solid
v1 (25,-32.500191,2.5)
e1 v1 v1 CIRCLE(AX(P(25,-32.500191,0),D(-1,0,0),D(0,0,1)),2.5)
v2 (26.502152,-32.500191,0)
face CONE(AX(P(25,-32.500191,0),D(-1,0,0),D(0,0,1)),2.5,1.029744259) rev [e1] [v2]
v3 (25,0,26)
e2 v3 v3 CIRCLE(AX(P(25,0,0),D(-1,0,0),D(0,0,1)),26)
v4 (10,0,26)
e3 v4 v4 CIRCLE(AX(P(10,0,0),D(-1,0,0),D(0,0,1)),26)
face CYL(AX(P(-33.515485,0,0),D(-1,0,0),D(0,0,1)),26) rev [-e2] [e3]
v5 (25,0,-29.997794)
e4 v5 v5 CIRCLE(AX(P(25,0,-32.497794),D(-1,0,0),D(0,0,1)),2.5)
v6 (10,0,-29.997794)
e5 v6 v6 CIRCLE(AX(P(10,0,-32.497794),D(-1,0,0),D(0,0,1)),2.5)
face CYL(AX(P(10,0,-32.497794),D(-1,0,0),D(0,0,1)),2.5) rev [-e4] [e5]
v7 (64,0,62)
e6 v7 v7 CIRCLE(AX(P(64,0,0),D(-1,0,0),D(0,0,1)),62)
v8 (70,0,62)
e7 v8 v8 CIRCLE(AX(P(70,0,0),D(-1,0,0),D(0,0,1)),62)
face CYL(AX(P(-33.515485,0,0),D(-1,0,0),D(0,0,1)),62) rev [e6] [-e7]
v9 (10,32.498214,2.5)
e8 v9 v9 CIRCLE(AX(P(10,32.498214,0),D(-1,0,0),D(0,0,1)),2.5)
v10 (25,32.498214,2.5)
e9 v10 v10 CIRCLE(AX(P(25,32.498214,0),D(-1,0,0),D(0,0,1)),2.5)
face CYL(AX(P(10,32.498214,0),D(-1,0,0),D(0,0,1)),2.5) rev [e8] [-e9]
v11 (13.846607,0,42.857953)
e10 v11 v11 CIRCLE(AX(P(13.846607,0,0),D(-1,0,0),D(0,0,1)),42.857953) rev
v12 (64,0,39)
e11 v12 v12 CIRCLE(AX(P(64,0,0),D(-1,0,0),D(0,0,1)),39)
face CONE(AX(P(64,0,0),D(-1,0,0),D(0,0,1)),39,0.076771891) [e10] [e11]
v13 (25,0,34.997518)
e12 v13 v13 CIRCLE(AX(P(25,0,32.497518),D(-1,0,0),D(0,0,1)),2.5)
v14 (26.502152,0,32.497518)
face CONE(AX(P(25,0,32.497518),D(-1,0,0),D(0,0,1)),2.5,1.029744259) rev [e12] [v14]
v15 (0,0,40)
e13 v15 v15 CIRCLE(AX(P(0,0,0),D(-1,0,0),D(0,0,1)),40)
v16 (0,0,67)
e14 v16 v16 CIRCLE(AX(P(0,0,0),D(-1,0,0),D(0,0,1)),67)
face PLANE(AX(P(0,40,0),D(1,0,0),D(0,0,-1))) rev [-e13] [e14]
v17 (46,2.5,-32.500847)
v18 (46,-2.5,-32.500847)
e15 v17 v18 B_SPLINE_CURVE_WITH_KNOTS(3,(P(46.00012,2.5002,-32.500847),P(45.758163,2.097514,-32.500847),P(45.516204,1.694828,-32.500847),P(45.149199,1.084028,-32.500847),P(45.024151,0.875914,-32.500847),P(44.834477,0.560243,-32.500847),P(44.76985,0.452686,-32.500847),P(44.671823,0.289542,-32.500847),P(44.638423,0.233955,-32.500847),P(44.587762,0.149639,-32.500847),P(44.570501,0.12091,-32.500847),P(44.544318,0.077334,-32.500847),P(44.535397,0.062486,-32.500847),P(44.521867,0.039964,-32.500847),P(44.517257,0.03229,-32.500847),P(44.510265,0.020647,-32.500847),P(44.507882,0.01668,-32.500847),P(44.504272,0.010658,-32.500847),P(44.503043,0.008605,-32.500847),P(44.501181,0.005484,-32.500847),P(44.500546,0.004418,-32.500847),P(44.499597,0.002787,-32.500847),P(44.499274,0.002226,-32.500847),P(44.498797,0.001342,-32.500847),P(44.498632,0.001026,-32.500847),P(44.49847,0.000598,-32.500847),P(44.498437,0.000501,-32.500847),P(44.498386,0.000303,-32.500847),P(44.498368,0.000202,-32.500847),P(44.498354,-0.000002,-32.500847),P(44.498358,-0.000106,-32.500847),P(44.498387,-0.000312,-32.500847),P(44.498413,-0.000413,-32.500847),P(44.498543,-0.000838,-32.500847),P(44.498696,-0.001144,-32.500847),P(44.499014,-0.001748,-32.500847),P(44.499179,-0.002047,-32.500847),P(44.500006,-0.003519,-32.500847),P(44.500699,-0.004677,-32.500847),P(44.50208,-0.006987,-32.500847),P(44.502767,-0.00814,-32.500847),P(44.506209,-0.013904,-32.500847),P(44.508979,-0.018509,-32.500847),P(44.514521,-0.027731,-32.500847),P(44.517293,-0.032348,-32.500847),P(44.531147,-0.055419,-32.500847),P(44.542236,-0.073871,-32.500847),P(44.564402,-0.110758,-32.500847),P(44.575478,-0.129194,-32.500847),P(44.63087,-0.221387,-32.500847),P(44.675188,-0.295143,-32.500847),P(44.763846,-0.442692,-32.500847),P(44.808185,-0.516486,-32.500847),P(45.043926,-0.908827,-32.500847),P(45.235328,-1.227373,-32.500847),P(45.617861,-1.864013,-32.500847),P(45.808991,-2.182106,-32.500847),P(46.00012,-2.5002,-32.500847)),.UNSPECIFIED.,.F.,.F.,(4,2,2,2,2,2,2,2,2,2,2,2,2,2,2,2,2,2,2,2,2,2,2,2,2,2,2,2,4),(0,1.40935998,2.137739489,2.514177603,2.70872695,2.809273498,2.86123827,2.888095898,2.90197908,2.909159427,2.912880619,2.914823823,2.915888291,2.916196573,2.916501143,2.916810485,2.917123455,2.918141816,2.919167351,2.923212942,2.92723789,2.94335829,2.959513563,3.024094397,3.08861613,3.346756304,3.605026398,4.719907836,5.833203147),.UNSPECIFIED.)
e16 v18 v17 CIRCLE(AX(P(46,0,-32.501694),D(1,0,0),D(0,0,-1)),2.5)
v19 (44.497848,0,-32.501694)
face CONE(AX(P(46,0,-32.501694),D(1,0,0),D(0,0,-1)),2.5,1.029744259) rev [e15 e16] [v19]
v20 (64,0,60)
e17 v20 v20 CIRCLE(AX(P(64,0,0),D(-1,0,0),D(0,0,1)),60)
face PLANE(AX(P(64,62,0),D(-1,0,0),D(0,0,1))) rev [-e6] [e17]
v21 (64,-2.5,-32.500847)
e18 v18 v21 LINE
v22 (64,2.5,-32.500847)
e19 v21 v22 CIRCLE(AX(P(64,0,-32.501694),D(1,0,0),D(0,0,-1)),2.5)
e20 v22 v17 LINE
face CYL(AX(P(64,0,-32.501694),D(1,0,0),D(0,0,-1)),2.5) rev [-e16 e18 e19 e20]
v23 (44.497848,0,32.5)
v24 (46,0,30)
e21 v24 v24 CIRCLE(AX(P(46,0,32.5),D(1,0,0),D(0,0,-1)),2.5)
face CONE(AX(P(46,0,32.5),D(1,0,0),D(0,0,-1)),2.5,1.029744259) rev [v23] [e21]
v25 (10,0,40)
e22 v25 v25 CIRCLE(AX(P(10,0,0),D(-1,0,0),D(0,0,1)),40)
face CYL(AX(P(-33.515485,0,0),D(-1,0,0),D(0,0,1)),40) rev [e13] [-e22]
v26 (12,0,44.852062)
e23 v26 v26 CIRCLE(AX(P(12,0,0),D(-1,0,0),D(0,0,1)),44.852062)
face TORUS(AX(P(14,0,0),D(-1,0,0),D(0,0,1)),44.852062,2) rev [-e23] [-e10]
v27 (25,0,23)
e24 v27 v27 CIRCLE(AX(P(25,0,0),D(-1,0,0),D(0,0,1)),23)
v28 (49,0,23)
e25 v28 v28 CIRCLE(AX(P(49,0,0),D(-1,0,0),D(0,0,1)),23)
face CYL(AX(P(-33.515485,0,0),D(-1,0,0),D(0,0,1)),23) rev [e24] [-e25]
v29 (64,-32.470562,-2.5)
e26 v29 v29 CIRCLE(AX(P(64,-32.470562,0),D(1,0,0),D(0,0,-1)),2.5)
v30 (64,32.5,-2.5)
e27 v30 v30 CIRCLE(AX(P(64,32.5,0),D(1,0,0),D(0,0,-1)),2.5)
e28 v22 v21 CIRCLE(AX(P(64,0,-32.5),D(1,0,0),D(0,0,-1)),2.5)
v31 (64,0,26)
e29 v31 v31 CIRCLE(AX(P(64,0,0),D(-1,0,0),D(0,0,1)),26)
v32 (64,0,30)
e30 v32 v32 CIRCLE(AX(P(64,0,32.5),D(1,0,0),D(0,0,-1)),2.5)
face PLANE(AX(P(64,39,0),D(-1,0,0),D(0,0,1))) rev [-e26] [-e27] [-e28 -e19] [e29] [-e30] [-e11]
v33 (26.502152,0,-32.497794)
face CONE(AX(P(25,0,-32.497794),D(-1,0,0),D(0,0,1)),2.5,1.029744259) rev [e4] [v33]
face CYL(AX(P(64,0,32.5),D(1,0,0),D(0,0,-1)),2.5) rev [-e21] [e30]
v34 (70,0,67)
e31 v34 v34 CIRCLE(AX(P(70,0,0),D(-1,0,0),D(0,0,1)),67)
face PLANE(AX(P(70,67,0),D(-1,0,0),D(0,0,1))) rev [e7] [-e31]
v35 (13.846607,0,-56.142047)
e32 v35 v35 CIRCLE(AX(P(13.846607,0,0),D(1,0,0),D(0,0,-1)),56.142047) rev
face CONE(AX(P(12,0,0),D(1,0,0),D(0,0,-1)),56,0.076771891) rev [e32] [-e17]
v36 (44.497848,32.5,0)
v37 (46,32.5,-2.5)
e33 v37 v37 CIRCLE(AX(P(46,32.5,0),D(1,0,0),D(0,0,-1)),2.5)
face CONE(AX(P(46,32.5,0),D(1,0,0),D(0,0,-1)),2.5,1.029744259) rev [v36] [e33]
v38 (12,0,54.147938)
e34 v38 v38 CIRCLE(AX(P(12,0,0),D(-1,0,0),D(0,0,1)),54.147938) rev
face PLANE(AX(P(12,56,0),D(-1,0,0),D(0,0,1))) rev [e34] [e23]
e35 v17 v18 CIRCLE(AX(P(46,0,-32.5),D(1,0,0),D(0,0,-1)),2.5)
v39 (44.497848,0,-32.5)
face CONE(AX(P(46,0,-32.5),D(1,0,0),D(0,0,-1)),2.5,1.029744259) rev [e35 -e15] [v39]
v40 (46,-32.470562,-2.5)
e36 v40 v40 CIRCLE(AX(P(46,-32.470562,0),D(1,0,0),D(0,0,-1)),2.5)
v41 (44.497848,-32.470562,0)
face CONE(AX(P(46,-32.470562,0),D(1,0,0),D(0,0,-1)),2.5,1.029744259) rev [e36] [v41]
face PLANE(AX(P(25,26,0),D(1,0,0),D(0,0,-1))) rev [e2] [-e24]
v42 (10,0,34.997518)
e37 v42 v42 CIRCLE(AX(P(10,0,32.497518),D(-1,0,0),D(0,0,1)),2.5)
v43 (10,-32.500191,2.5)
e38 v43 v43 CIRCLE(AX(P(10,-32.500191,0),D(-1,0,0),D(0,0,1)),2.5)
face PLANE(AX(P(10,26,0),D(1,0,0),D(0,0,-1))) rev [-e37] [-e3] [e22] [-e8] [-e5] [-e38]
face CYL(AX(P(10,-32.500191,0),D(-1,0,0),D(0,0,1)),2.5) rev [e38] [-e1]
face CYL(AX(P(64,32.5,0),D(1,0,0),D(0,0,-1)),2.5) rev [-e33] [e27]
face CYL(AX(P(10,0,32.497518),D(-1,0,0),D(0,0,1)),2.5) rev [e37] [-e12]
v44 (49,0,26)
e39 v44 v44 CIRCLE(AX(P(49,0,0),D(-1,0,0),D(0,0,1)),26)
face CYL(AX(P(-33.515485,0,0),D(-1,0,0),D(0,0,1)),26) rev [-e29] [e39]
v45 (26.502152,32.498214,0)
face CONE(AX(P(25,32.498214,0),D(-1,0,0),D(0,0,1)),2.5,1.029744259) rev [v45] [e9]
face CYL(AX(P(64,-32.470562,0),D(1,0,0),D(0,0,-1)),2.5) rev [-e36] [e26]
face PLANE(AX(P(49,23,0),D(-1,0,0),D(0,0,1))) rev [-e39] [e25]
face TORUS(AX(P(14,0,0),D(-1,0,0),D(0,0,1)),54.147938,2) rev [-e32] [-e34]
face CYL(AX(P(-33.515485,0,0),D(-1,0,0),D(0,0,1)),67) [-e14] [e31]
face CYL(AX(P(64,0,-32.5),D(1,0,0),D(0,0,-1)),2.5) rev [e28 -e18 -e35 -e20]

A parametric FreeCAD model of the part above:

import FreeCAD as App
import Part
import Sketcher


def edges_at(feature, points):
    """Names of the edges that pass closest to the given points."""
    edges = feature.Shape.Edges
    near = lambda p: min(range(len(edges)), key=lambda i: edges[i].distToShape(Part.Vertex(*p))[0])
    return sorted({f"Edge{near(p) + 1}" for p in points})

doc = App.newDocument("Part")
params = doc.addObject("Spreadsheet::Sheet", "Params")
for row, (alias, value) in enumerate([
    ("sketch1_width", "70 mm"),
    ("sketch1_width2", "10 mm"),
    ("sketch1_width3", "15 mm"),
    ("sketch1_width4", "24 mm"),
    ("sketch1_height", "27 mm"),
    ("revolution_angle", "360 deg"),
    ("fillet_radius", "2 mm"),
    ("sketch2_diameter", "5 mm"),
    ("hole_diameter", "5 mm"),
    ("hole_depth", "18 mm"),
    ("sketch3_diameter", "5 mm"),
    ("hole2_diameter", "5 mm"),
    ("hole2_depth", "18 mm"),
    ("sketch4_diameter", "5 mm"),
    ("hole3_diameter", "5 mm"),
    ("hole3_depth", "15 mm"),
    ("sketch5_diameter", "5 mm"),
    ("hole4_diameter", "5 mm"),
    ("hole4_depth", "15 mm"),
    ("sketch6_diameter", "5 mm"),
    ("hole5_diameter", "5 mm"),
    ("hole5_depth", "18 mm"),
    ("sketch7_diameter", "5 mm"),
    ("hole6_diameter", "5 mm"),
    ("hole6_depth", "18 mm"),
    ("sketch8_diameter", "5 mm"),
    ("hole7_diameter", "5 mm"),
    ("hole7_depth", "15 mm"),
], start=1):
    params.set(f"A{row}", alias)
    params.set(f"B{row}", "=" + value)
    params.setAlias(f"B{row}", alias)

body = doc.addObject("PartDesign::Body", "Body")

# Sketch on XY plane
sketch1 = body.newObject("Sketcher::SketchObject", "Sketch")
sketch1.AttachmentSupport = (doc.getObject("XY_Plane"), [""])
sketch1.MapMode = "FlatFace"
sketch1.addGeometry(Part.LineSegment(App.Vector(70, 67, 0), App.Vector(0, 67, 0)), False)
sketch1.addGeometry(Part.LineSegment(App.Vector(0, 67, 0), App.Vector(0, 40, 0)), False)
sketch1.addGeometry(Part.LineSegment(App.Vector(0, 40, 0), App.Vector(10, 40, 0)), False)
sketch1.addGeometry(Part.LineSegment(App.Vector(10, 40, 0), App.Vector(10, 26, 0)), False)
sketch1.addGeometry(Part.LineSegment(App.Vector(10, 26, 0), App.Vector(25, 26, 0)), False)
sketch1.addGeometry(Part.LineSegment(App.Vector(25, 26, 0), App.Vector(25, 23, 0)), False)
sketch1.addGeometry(Part.LineSegment(App.Vector(25, 23, 0), App.Vector(49, 23, 0)), False)
sketch1.addGeometry(Part.LineSegment(App.Vector(49, 23, 0), App.Vector(49, 26, 0)), False)
sketch1.addGeometry(Part.LineSegment(App.Vector(49, 26, 0), App.Vector(64, 26, 0)), False)
sketch1.addGeometry(Part.LineSegment(App.Vector(64, 26, 0), App.Vector(64, 39, 0)), False)
sketch1.addGeometry(Part.LineSegment(App.Vector(64, 39, 0), App.Vector(12, 43, 0)), False)
sketch1.addGeometry(Part.LineSegment(App.Vector(12, 43, 0), App.Vector(12, 56, 0)), False)
sketch1.addGeometry(Part.LineSegment(App.Vector(12, 56, 0), App.Vector(64, 60, 0)), False)
sketch1.addGeometry(Part.LineSegment(App.Vector(64, 60, 0), App.Vector(64, 62, 0)), False)
sketch1.addGeometry(Part.LineSegment(App.Vector(64, 62, 0), App.Vector(70, 62, 0)), False)
sketch1.addGeometry(Part.LineSegment(App.Vector(70, 62, 0), App.Vector(70, 67, 0)), False)
sketch1.addConstraint(Sketcher.Constraint("Coincident", 0, 2, 1, 1))
sketch1.addConstraint(Sketcher.Constraint("Coincident", 1, 2, 2, 1))
sketch1.addConstraint(Sketcher.Constraint("Coincident", 2, 2, 3, 1))
sketch1.addConstraint(Sketcher.Constraint("Coincident", 3, 2, 4, 1))
sketch1.addConstraint(Sketcher.Constraint("Coincident", 4, 2, 5, 1))
sketch1.addConstraint(Sketcher.Constraint("Coincident", 5, 2, 6, 1))
sketch1.addConstraint(Sketcher.Constraint("Coincident", 6, 2, 7, 1))
sketch1.addConstraint(Sketcher.Constraint("Coincident", 7, 2, 8, 1))
sketch1.addConstraint(Sketcher.Constraint("Coincident", 8, 2, 9, 1))
sketch1.addConstraint(Sketcher.Constraint("Coincident", 9, 2, 10, 1))
sketch1.addConstraint(Sketcher.Constraint("Coincident", 10, 2, 11, 1))
sketch1.addConstraint(Sketcher.Constraint("Coincident", 11, 2, 12, 1))
sketch1.addConstraint(Sketcher.Constraint("Coincident", 12, 2, 13, 1))
sketch1.addConstraint(Sketcher.Constraint("Coincident", 13, 2, 14, 1))
sketch1.addConstraint(Sketcher.Constraint("Coincident", 14, 2, 15, 1))
sketch1.addConstraint(Sketcher.Constraint("Coincident", 15, 2, 0, 1))
sketch1.addConstraint(Sketcher.Constraint("Horizontal", 0))
sketch1.addConstraint(Sketcher.Constraint("Vertical", 1))
sketch1.addConstraint(Sketcher.Constraint("Horizontal", 2))
sketch1.addConstraint(Sketcher.Constraint("Vertical", 3))
sketch1.addConstraint(Sketcher.Constraint("Horizontal", 4))
sketch1.addConstraint(Sketcher.Constraint("Vertical", 5))
sketch1.addConstraint(Sketcher.Constraint("Horizontal", 6))
sketch1.addConstraint(Sketcher.Constraint("Vertical", 7))
sketch1.addConstraint(Sketcher.Constraint("Horizontal", 8))
sketch1.addConstraint(Sketcher.Constraint("Vertical", 9))
sketch1.addConstraint(Sketcher.Constraint("Vertical", 11))
sketch1.addConstraint(Sketcher.Constraint("Vertical", 13))
sketch1.addConstraint(Sketcher.Constraint("Horizontal", 14))
sketch1.addConstraint(Sketcher.Constraint("Vertical", 15))
sketch1.addConstraint(Sketcher.Constraint("PointOnObject", 0, 2, -2))
sketch1.addConstraint(Sketcher.Constraint("Horizontal", 4, 2, 7, 2))
sketch1.addConstraint(Sketcher.Constraint("Vertical", 9, 2, 12, 2))
sketch1.addConstraint(Sketcher.Constraint("Equal", 4, 8))
sketch1.addConstraint(Sketcher.Constraint("Equal", 9, 11))
sketch1.addConstraint(Sketcher.Constraint("Equal", 10, 12))
sketch1.addConstraint(Sketcher.Constraint("DistanceX", 0, 2, 0, 1, 70.0))
sketch1.addConstraint(Sketcher.Constraint("DistanceX", 2, 1, 2, 2, 10.0))
sketch1.addConstraint(Sketcher.Constraint("DistanceX", 4, 1, 4, 2, 15.0))
sketch1.addConstraint(Sketcher.Constraint("DistanceX", 6, 1, 6, 2, 24.0))
sketch1.addConstraint(Sketcher.Constraint("DistanceY", 1, 2, 1, 1, 27.0))
sketch1.addConstraint(Sketcher.Constraint("DistanceY", 3, 2, 3, 1, 14.0))
sketch1.addConstraint(Sketcher.Constraint("DistanceY", 5, 2, 5, 1, 3.0))
sketch1.addConstraint(Sketcher.Constraint("DistanceY", 9, 1, 9, 2, 13.0))
sketch1.addConstraint(Sketcher.Constraint("DistanceY", 13, 1, 13, 2, 2.0))
sketch1.addConstraint(Sketcher.Constraint("DistanceY", 15, 1, 15, 2, 5.0))
sketch1.addConstraint(Sketcher.Constraint("DistanceY", -1, 1, 0, 2, 67.0))
sketch1.addConstraint(Sketcher.Constraint("DistanceX", -1, 1, 10, 2, 12.0))
sketch1.setExpression("Constraints[36]", "Params.sketch1_width")
sketch1.setExpression("Constraints[37]", "Params.sketch1_width2")
sketch1.setExpression("Constraints[38]", "Params.sketch1_width3")
sketch1.setExpression("Constraints[39]", "Params.sketch1_width4")
sketch1.setExpression("Constraints[40]", "Params.sketch1_height")
revolution = body.newObject("PartDesign::Revolution", "Revolution")
revolution.Profile = sketch1
revolution.ReferenceAxis = (sketch1, ["H_Axis"])
revolution.setExpression("Angle", "Params.revolution_angle")
doc.recompute()

fillet = body.newObject("PartDesign::Fillet", "Fillet")
fillet.Base = (revolution, edges_at(revolution, [(12, 0, -43), (12, 0, -56)]))
fillet.setExpression("Radius", "Params.fillet_radius")

# Sketch on YZ plane
sketch2 = body.newObject("Sketcher::SketchObject", "Sketch001")
sketch2.AttachmentSupport = (doc.getObject("YZ_Plane"), [""])
sketch2.MapMode = "FlatFace"
sketch2.AttachmentOffset = App.Placement(App.Vector(0, 0, 64), App.Rotation())
sketch2.addGeometry(Part.Circle(App.Vector(32.5, 0, 0), App.Vector(0, 0, 1), 2.5), False)
sketch2.addConstraint(Sketcher.Constraint("PointOnObject", 0, 3, -1))
sketch2.addConstraint(Sketcher.Constraint("Diameter", 0, 5.0))
sketch2.addConstraint(Sketcher.Constraint("DistanceX", -1, 1, 0, 3, 32.5))
sketch2.setExpression("Constraints[1]", "Params.sketch2_diameter")
doc.recompute()
hole = body.newObject("PartDesign::Hole", "Hole")
hole.Profile = sketch2
hole.ThreadType = "None"
hole.setExpression("Diameter", "Params.hole_diameter")
hole.DepthType = "Dimension"
hole.setExpression("Depth", "Params.hole_depth")
hole.DrillPoint = "Angled"
hole.DrillPointAngle = 118

# Sketch on YZ plane
sketch3 = body.newObject("Sketcher::SketchObject", "Sketch002")
sketch3.AttachmentSupport = (doc.getObject("YZ_Plane"), [""])
sketch3.MapMode = "FlatFace"
sketch3.AttachmentOffset = App.Placement(App.Vector(0, 0, 64), App.Rotation())
sketch3.addGeometry(Part.Circle(App.Vector(-32.5, 0, 0), App.Vector(0, 0, 1), 2.5), False)
sketch3.addConstraint(Sketcher.Constraint("PointOnObject", 0, 3, -1))
sketch3.addConstraint(Sketcher.Constraint("Diameter", 0, 5.0))
sketch3.addConstraint(Sketcher.Constraint("DistanceX", 0, 3, -1, 1, 32.470562))
sketch3.setExpression("Constraints[1]", "Params.sketch3_diameter")
doc.recompute()
hole2 = body.newObject("PartDesign::Hole", "Hole001")
hole2.Profile = sketch3
hole2.ThreadType = "None"
hole2.setExpression("Diameter", "Params.hole2_diameter")
hole2.DepthType = "Dimension"
hole2.setExpression("Depth", "Params.hole2_depth")
hole2.DrillPoint = "Angled"
hole2.DrillPointAngle = 118

# Sketch on YZ plane
sketch4 = body.newObject("Sketcher::SketchObject", "Sketch003")
sketch4.AttachmentSupport = (doc.getObject("YZ_Plane"), [""])
sketch4.MapMode = "FlatFace"
sketch4.AttachmentOffset = App.Placement(App.Vector(0, 0, 10), App.Rotation())
sketch4.addGeometry(Part.Circle(App.Vector(32.5, 0, 0), App.Vector(0, 0, 1), 2.5), False)
sketch4.addConstraint(Sketcher.Constraint("PointOnObject", 0, 3, -1))
sketch4.addConstraint(Sketcher.Constraint("Diameter", 0, 5.0))
sketch4.addConstraint(Sketcher.Constraint("DistanceX", -1, 1, 0, 3, 32.498214))
sketch4.setExpression("Constraints[1]", "Params.sketch4_diameter")
doc.recompute()
hole3 = body.newObject("PartDesign::Hole", "Hole002")
hole3.Profile = sketch4
hole3.ThreadType = "None"
hole3.setExpression("Diameter", "Params.hole3_diameter")
hole3.DepthType = "Dimension"
hole3.setExpression("Depth", "Params.hole3_depth")
hole3.DrillPoint = "Angled"
hole3.DrillPointAngle = 118
hole3.Reversed = True

# Sketch on YZ plane
sketch5 = body.newObject("Sketcher::SketchObject", "Sketch004")
sketch5.AttachmentSupport = (doc.getObject("YZ_Plane"), [""])
sketch5.MapMode = "FlatFace"
sketch5.AttachmentOffset = App.Placement(App.Vector(0, 0, 10), App.Rotation())
sketch5.addGeometry(Part.Circle(App.Vector(-32.5, 0, 0), App.Vector(0, 0, 1), 2.5), False)
sketch5.addConstraint(Sketcher.Constraint("PointOnObject", 0, 3, -1))
sketch5.addConstraint(Sketcher.Constraint("Diameter", 0, 5.0))
sketch5.addConstraint(Sketcher.Constraint("DistanceX", 0, 3, -1, 1, 32.500191))
sketch5.setExpression("Constraints[1]", "Params.sketch5_diameter")
doc.recompute()
hole4 = body.newObject("PartDesign::Hole", "Hole003")
hole4.Profile = sketch5
hole4.ThreadType = "None"
hole4.setExpression("Diameter", "Params.hole4_diameter")
hole4.DepthType = "Dimension"
hole4.setExpression("Depth", "Params.hole4_depth")
hole4.DrillPoint = "Angled"
hole4.DrillPointAngle = 118
hole4.Reversed = True

# Sketch on YZ plane
sketch6 = body.newObject("Sketcher::SketchObject", "Sketch005")
sketch6.AttachmentSupport = (doc.getObject("YZ_Plane"), [""])
sketch6.MapMode = "FlatFace"
sketch6.AttachmentOffset = App.Placement(App.Vector(0, 0, 64), App.Rotation())
sketch6.addGeometry(Part.Circle(App.Vector(0, -32.5, 0), App.Vector(0, 0, 1), 2.5), False)
sketch6.addConstraint(Sketcher.Constraint("PointOnObject", 0, 3, -2))
sketch6.addConstraint(Sketcher.Constraint("Diameter", 0, 5.0))
sketch6.addConstraint(Sketcher.Constraint("DistanceY", 0, 3, -1, 1, 32.501694))
sketch6.setExpression("Constraints[1]", "Params.sketch6_diameter")
doc.recompute()
hole5 = body.newObject("PartDesign::Hole", "Hole004")
hole5.Profile = sketch6
hole5.ThreadType = "None"
hole5.setExpression("Diameter", "Params.hole5_diameter")
hole5.DepthType = "Dimension"
hole5.setExpression("Depth", "Params.hole5_depth")
hole5.DrillPoint = "Angled"
hole5.DrillPointAngle = 118

# Sketch on YZ plane
sketch7 = body.newObject("Sketcher::SketchObject", "Sketch006")
sketch7.AttachmentSupport = (doc.getObject("YZ_Plane"), [""])
sketch7.MapMode = "FlatFace"
sketch7.AttachmentOffset = App.Placement(App.Vector(0, 0, 64), App.Rotation())
sketch7.addGeometry(Part.Circle(App.Vector(0, -32.5, 0), App.Vector(0, 0, 1), 2.5), False)
sketch7.addGeometry(Part.Circle(App.Vector(0, 32.5, 0), App.Vector(0, 0, 1), 2.5), False)
sketch7.addConstraint(Sketcher.Constraint("Equal", 0, 1))
sketch7.addConstraint(Sketcher.Constraint("Symmetric", 0, 3, 1, 3, -1, 1))
sketch7.addConstraint(Sketcher.Constraint("PointOnObject", 0, 3, -2))
sketch7.addConstraint(Sketcher.Constraint("Diameter", 0, 5.0))
sketch7.addConstraint(Sketcher.Constraint("DistanceY", 0, 3, 1, 3, 65.0))
sketch7.setExpression("Constraints[3]", "Params.sketch7_diameter")
doc.recompute()
hole6 = body.newObject("PartDesign::Hole", "Hole005")
hole6.Profile = sketch7
hole6.ThreadType = "None"
hole6.setExpression("Diameter", "Params.hole6_diameter")
hole6.DepthType = "Dimension"
hole6.setExpression("Depth", "Params.hole6_depth")
hole6.DrillPoint = "Angled"
hole6.DrillPointAngle = 118

# Sketch on YZ plane
sketch8 = body.newObject("Sketcher::SketchObject", "Sketch007")
sketch8.AttachmentSupport = (doc.getObject("YZ_Plane"), [""])
sketch8.MapMode = "FlatFace"
sketch8.AttachmentOffset = App.Placement(App.Vector(0, 0, 10), App.Rotation())
sketch8.addGeometry(Part.Circle(App.Vector(0, -32.5, 0), App.Vector(0, 0, 1), 2.5), False)
sketch8.addGeometry(Part.Circle(App.Vector(0, 32.5, 0), App.Vector(0, 0, 1), 2.5), False)
sketch8.addConstraint(Sketcher.Constraint("Equal", 0, 1))
sketch8.addConstraint(Sketcher.Constraint("PointOnObject", 0, 3, -2))
sketch8.addConstraint(Sketcher.Constraint("PointOnObject", 1, 3, -2))
sketch8.addConstraint(Sketcher.Constraint("Diameter", 0, 5.0))
sketch8.addConstraint(Sketcher.Constraint("DistanceY", -1, 1, 1, 3, 32.497518))
sketch8.addConstraint(Sketcher.Constraint("DistanceY", 0, 3, 1, 3, 64.995312))
sketch8.setExpression("Constraints[3]", "Params.sketch8_diameter")
doc.recompute()
hole7 = body.newObject("PartDesign::Hole", "Hole006")
hole7.Profile = sketch8
hole7.ThreadType = "None"
hole7.setExpression("Diameter", "Params.hole7_diameter")
hole7.DepthType = "Dimension"
hole7.setExpression("Depth", "Params.hole7_depth")
hole7.DrillPoint = "Angled"
hole7.DrillPointAngle = 118
hole7.Reversed = True

doc.recompute()
